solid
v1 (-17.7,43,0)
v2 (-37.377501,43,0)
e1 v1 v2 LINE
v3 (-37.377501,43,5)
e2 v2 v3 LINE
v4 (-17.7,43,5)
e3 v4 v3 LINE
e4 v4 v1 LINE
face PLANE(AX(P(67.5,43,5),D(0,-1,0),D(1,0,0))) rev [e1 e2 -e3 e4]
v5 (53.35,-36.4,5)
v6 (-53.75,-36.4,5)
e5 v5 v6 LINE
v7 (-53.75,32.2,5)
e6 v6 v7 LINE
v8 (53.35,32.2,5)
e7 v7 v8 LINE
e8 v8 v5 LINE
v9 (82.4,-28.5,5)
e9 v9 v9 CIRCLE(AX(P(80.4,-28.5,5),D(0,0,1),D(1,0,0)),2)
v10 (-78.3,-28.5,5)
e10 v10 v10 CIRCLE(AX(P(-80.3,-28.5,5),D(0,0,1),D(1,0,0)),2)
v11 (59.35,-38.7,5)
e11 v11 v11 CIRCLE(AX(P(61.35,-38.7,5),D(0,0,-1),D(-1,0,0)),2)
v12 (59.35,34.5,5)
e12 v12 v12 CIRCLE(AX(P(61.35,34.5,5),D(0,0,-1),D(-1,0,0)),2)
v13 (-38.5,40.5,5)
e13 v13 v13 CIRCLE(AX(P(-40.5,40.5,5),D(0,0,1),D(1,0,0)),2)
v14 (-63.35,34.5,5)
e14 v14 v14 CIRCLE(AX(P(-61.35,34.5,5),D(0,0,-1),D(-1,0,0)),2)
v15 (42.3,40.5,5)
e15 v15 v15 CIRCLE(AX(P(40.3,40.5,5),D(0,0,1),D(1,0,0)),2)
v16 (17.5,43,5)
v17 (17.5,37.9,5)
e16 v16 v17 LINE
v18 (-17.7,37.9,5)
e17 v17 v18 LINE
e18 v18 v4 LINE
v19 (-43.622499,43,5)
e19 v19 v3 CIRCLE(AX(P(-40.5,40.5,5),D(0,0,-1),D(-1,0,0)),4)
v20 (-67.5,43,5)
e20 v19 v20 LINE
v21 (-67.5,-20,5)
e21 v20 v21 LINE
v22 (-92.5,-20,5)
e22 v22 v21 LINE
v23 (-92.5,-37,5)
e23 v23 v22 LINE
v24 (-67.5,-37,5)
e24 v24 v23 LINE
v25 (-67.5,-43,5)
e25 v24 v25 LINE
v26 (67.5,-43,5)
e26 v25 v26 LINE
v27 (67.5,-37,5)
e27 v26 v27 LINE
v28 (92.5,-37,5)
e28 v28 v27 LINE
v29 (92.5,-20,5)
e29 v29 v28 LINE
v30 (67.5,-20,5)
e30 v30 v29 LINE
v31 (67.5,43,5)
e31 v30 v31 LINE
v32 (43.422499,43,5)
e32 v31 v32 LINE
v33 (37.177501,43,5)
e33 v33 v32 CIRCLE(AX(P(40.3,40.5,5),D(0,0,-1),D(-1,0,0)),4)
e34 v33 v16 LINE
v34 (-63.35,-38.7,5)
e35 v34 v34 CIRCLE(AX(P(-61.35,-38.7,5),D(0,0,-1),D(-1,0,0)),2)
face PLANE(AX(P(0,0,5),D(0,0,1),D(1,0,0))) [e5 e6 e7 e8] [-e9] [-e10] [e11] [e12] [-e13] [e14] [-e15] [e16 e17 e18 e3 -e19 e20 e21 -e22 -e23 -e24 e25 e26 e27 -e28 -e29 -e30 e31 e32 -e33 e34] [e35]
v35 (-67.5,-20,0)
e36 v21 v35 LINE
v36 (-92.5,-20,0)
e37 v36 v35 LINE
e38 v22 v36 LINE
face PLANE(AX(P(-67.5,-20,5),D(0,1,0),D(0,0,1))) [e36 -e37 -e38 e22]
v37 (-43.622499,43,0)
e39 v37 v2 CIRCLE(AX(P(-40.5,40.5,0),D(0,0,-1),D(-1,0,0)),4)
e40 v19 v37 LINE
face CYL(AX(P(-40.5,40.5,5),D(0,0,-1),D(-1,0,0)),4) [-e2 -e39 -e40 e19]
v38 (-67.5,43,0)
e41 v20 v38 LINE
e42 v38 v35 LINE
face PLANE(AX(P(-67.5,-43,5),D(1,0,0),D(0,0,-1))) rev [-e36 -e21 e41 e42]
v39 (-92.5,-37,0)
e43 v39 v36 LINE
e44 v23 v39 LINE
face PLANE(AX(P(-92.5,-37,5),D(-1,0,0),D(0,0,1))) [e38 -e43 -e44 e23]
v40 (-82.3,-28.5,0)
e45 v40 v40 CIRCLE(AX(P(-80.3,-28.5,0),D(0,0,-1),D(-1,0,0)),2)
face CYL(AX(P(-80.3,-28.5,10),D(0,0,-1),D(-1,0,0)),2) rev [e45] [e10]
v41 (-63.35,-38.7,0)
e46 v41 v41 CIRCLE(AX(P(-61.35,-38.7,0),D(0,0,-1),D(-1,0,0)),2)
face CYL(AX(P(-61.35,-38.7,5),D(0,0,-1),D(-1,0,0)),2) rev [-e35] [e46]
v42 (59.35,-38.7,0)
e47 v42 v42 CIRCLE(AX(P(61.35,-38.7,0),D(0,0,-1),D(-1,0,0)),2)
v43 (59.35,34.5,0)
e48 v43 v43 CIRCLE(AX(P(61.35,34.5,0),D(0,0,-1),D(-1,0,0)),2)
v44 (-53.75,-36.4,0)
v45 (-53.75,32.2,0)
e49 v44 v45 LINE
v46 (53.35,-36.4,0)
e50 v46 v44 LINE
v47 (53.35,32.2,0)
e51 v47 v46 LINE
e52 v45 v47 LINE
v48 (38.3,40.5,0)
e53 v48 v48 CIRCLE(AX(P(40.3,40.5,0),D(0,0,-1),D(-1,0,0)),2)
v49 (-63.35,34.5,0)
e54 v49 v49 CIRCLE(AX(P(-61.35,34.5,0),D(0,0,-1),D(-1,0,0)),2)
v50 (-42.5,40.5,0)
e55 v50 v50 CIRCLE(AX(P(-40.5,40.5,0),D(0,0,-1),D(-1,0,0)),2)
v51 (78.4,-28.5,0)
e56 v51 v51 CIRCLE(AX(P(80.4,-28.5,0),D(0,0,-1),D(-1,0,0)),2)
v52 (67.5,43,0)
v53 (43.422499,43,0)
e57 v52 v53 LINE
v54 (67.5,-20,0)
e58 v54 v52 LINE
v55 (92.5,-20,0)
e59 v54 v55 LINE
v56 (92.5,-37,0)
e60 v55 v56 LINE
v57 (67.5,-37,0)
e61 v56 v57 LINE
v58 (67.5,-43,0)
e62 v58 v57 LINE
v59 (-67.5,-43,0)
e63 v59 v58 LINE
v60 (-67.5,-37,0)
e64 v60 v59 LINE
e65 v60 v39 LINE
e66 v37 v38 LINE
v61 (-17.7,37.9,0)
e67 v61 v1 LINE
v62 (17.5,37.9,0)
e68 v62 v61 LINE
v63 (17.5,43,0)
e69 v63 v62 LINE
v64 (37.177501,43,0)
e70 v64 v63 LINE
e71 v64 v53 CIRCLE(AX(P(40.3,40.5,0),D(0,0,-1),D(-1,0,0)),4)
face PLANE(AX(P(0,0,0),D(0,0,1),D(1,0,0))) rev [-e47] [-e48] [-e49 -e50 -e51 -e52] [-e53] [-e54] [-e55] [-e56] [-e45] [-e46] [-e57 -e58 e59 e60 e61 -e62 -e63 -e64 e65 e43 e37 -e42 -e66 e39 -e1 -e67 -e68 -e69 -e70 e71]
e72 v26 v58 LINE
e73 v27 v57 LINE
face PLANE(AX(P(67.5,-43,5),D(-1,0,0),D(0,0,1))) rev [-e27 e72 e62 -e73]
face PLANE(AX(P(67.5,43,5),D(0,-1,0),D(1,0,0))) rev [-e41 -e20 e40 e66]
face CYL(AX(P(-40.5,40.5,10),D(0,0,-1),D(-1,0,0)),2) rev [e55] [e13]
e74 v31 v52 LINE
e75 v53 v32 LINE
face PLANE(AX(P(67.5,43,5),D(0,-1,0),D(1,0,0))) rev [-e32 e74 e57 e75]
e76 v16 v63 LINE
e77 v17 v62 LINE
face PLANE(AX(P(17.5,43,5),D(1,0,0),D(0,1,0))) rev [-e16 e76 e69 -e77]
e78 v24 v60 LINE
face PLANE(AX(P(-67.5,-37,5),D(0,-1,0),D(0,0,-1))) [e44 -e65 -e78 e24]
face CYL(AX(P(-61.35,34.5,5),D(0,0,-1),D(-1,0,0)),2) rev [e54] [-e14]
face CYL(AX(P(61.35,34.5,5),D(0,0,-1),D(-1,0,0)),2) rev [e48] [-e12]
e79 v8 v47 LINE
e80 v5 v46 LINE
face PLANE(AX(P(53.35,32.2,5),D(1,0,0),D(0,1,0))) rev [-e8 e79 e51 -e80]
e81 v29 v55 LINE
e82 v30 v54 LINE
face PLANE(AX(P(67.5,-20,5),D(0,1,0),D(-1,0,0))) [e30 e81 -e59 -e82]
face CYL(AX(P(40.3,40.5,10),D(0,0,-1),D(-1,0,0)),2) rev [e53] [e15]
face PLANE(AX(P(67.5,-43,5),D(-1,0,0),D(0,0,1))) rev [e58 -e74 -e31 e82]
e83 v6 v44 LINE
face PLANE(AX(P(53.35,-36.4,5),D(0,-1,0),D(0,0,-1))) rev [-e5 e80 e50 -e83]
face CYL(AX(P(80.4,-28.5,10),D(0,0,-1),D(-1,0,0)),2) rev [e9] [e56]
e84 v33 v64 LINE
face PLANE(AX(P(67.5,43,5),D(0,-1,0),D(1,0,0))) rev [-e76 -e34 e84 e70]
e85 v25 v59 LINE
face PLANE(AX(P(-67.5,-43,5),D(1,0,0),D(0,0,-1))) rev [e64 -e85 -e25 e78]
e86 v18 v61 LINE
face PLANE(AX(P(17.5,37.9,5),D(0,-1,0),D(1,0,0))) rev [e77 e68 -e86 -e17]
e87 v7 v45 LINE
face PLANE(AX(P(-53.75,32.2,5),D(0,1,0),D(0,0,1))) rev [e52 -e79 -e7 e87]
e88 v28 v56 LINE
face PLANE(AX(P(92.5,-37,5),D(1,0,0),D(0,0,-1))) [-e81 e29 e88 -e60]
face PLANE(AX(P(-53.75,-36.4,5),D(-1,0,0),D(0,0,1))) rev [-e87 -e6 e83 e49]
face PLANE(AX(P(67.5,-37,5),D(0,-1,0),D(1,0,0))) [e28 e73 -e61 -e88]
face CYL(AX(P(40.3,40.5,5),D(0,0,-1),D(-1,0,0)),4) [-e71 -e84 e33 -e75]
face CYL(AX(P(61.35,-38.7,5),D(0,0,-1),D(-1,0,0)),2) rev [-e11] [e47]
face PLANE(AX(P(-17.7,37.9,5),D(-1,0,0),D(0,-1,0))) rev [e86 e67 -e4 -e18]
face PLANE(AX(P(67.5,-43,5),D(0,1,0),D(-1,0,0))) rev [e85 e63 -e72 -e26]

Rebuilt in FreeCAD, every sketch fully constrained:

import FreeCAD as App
import Part
import Sketcher
Q = App.Units.Quantity


def add_polygon(sketch, points):
    """Adds a closed chain of lines whose ends are joined by coincident constraints."""
    first, n = sketch.GeometryCount, len(points)
    for a, b in zip(points, points[1:] + points[:1]):
        sketch.addGeometry(Part.LineSegment(App.Vector(*a, 0), App.Vector(*b, 0)), False)
    for i in range(n):
        sketch.addConstraint(Sketcher.Constraint("Coincident", first + i, 2, first + (i + 1) % n, 1))

doc = App.newDocument("Part")
body = doc.addObject("PartDesign::Body", "Body")

# Sketch on XY plane
sketch1 = doc.addObject("Sketcher::SketchObject", "Sketch")
body.addObject(sketch1)
sketch1.AttachmentSupport = (doc.XY_Plane, [""])
sketch1.MapMode = "FlatFace"
add_polygon(sketch1, [(-68, 43), (-68, -43), (68, -43), (68, 43)])  # lines 0-3
sketch1.addConstraint([
    Sketcher.Constraint("Vertical", 0),
    Sketcher.Constraint("Horizontal", 1),
    Sketcher.Constraint("Vertical", 2),
    Sketcher.Constraint("Horizontal", 3),
    Sketcher.Constraint("Symmetric", 0, 2, 2, 2, -1, 1),
    Sketcher.Constraint("DistanceX", 1, 1, 1, 2, Q("135 mm")),
    Sketcher.Constraint("DistanceY", 0, 2, 0, 1, Q("86 mm")),
])
pad1 = doc.addObject("PartDesign::Pad", "Pad")
body.addObject(pad1)
pad1.Profile = sketch1
pad1.Length = 5

# Sketch on XY plane
sketch2 = doc.addObject("Sketcher::SketchObject", "Sketch001")
body.addObject(sketch2)
sketch2.AttachmentSupport = (doc.XY_Plane, [""])
sketch2.MapMode = "FlatFace"
add_polygon(sketch2, [(18, 43), (18, 38), (-18, 38), (-18, 43)])  # lines 0-3
sketch2.addConstraint([
    Sketcher.Constraint("Vertical", 0),
    Sketcher.Constraint("Horizontal", 1),
    Sketcher.Constraint("Vertical", 2),
    Sketcher.Constraint("Horizontal", 3),
    Sketcher.Constraint("DistanceX", 1, 2, 1, 1, Q("35.2 mm")),
    Sketcher.Constraint("DistanceY", 0, 2, 0, 1, Q("5.1 mm")),
    Sketcher.Constraint("DistanceY", -1, 1, 2, 2, Q("43 mm")),
    Sketcher.Constraint("DistanceX", -1, 1, 0, 2, Q("17.5 mm")),
])
pocket1 = doc.addObject("PartDesign::Pocket", "Pocket")
body.addObject(pocket1)
pocket1.Profile = sketch2
pocket1.Length = 5
pocket1.Reversed = True

# Sketch on XY plane
sketch3 = doc.addObject("Sketcher::SketchObject", "Sketch002")
body.addObject(sketch3)
sketch3.AttachmentSupport = (doc.XY_Plane, [""])
sketch3.MapMode = "FlatFace"
add_polygon(sketch3, [(-68, -20), (-68, -37), (-92, -37), (-92, -20)])  # lines 0-3
add_polygon(sketch3, [(92, -20), (92, -37), (68, -37), (68, -20)])  # lines 4-7
sketch3.addConstraint([
    Sketcher.Constraint("Vertical", 0),
    Sketcher.Constraint("Horizontal", 1),
    Sketcher.Constraint("Vertical", 2),
    Sketcher.Constraint("Horizontal", 3),
    Sketcher.Constraint("Vertical", 4),
    Sketcher.Constraint("Horizontal", 5),
    Sketcher.Constraint("Vertical", 6),
    Sketcher.Constraint("Horizontal", 7),
    Sketcher.Constraint("Symmetric", 1, 2, 4, 2, -2),
    Sketcher.Constraint("Symmetric", 3, 2, 6, 2, -2),
    Sketcher.Constraint("DistanceX", 1, 2, 1, 1, Q("25 mm")),
    Sketcher.Constraint("DistanceY", 0, 2, 0, 1, Q("17 mm")),
    Sketcher.Constraint("DistanceY", 0, 2, -1, 1, Q("37 mm")),
    Sketcher.Constraint("DistanceX", 0, 2, 4, 2, Q("160 mm")),
])
pad2 = doc.addObject("PartDesign::Pad", "Pad001")
body.addObject(pad2)
pad2.Profile = sketch3
pad2.Length = 5

# Sketch on XY plane
sketch4 = doc.addObject("Sketcher::SketchObject", "Sketch003")
body.addObject(sketch4)
sketch4.AttachmentSupport = (doc.XY_Plane, [""])
sketch4.MapMode = "FlatFace"
add_polygon(sketch4, [(53, 32), (53, -36), (-54, -36), (-54, 32)])  # lines 0-3
sketch4.addConstraint([
    Sketcher.Constraint("Vertical", 0),
    Sketcher.Constraint("Horizontal", 1),
    Sketcher.Constraint("Vertical", 2),
    Sketcher.Constraint("Horizontal", 3),
    Sketcher.Constraint("DistanceX", 1, 2, 1, 1, Q("107.1 mm")),
    Sketcher.Constraint("DistanceY", 0, 2, 0, 1, Q("68.6 mm")),
    Sketcher.Constraint("DistanceY", 0, 2, -1, 1, Q("36.4 mm")),
    Sketcher.Constraint("DistanceX", -1, 1, 0, 2, Q("53.35 mm")),
])
pocket2 = doc.addObject("PartDesign::Pocket", "Pocket001")
body.addObject(pocket2)
pocket2.Profile = sketch4
pocket2.Length = 5
pocket2.Reversed = True

# Sketch on XY plane
sketch5 = doc.addObject("Sketcher::SketchObject", "Sketch004")
body.addObject(sketch5)
sketch5.AttachmentSupport = (doc.XY_Plane, [""])
sketch5.MapMode = "FlatFace"
sketch5.addGeometry([
    Part.Circle(App.Vector(40.3, 40.5, 0), App.Vector(0, 0, 1), 2),
    Part.Circle(App.Vector(80.4, -28.5, 0), App.Vector(0, 0, 1), 2),
    Part.Circle(App.Vector(-80.3, -28.5, 0), App.Vector(0, 0, 1), 2),
    Part.Circle(App.Vector(-40.5, 40.5, 0), App.Vector(0, 0, 1), 2),
], False)
sketch5.addConstraint([
    Sketcher.Constraint("Equal", 0, 1),
    Sketcher.Constraint("Equal", 1, 2),
    Sketcher.Constraint("Equal", 2, 3),
    Sketcher.Constraint("Horizontal", 1, 3, 2, 3),
    Sketcher.Constraint("Horizontal", 0, 3, 3, 3),
    Sketcher.Constraint("Diameter", 0, Q("4 mm")),
    Sketcher.Constraint("DistanceY", 1, 3, 0, 3, Q("69 mm")),
    Sketcher.Constraint("DistanceX", -1, 1, 0, 3, Q("40.3 mm")),
    Sketcher.Constraint("DistanceY", -1, 1, 0, 3, Q("40.5 mm")),
    Sketcher.Constraint("DistanceX", -1, 1, 1, 3, Q("80.4 mm")),
    Sketcher.Constraint("DistanceX", 2, 3, -1, 1, Q("80.3 mm")),
    Sketcher.Constraint("DistanceX", 3, 3, -1, 1, Q("40.5 mm")),
])
pocket3 = doc.addObject("PartDesign::Pocket", "Pocket002")
body.addObject(pocket3)
pocket3.Profile = sketch5
pocket3.Length = 10
pocket3.Reversed = True

# Sketch on XY plane
sketch6 = doc.addObject("Sketcher::SketchObject", "Sketch005")
body.addObject(sketch6)
sketch6.AttachmentSupport = (doc.XY_Plane, [""])
sketch6.MapMode = "FlatFace"
sketch6.addGeometry([
    Part.Circle(App.Vector(-40.5, 40.5, 0), App.Vector(0, 0, 1), 4),
    Part.Circle(App.Vector(-40.5, 40.5, 0), App.Vector(0, 0, 1), 2),
    Part.Circle(App.Vector(40.3, 40.5, 0), App.Vector(0, 0, 1), 4),
    Part.Circle(App.Vector(40.3, 40.5, 0), App.Vector(0, 0, 1), 2),
], False)
sketch6.addConstraint([
    Sketcher.Constraint("Coincident", 1, 3, 0, 3),
    Sketcher.Constraint("Coincident", 3, 3, 2, 3),
    Sketcher.Constraint("Equal", 0, 2),
    Sketcher.Constraint("Equal", 1, 3),
    Sketcher.Constraint("Horizontal", 1, 3, 2, 3),
    Sketcher.Constraint("Diameter", 0, Q("8 mm")),
    Sketcher.Constraint("Diameter", 1, Q("4 mm")),
    Sketcher.Constraint("DistanceX", 0, 3, -1, 1, Q("40.5 mm")),
    Sketcher.Constraint("DistanceY", -1, 1, 0, 3, Q("40.5 mm")),
    Sketcher.Constraint("DistanceX", -1, 1, 2, 3, Q("40.3 mm")),
])
pad3 = doc.addObject("PartDesign::Pad", "Pad002")
body.addObject(pad3)
pad3.Profile = sketch6
pad3.Length = 5

# Sketch on XY plane
sketch7 = doc.addObject("Sketcher::SketchObject", "Sketch006")
body.addObject(sketch7)
sketch7.AttachmentSupport = (doc.XY_Plane, [""])
sketch7.MapMode = "FlatFace"
sketch7.addGeometry([
    Part.Circle(App.Vector(-61.4, -38.7, 0), App.Vector(0, 0, 1), 2),
    Part.Circle(App.Vector(61.4, -38.7, 0), App.Vector(0, 0, 1), 2),
    Part.Circle(App.Vector(61.4, 34.5, 0), App.Vector(0, 0, 1), 2),
    Part.Circle(App.Vector(-61.4, 34.5, 0), App.Vector(0, 0, 1), 2),
], False)
sketch7.addConstraint([
    Sketcher.Constraint("Equal", 0, 1),
    Sketcher.Constraint("Equal", 1, 2),
    Sketcher.Constraint("Equal", 2, 3),
    Sketcher.Constraint("Symmetric", 0, 3, 1, 3, -2),
    Sketcher.Constraint("Symmetric", 2, 3, 3, 3, -2),
    Sketcher.Constraint("Vertical", 1, 3, 2, 3),
    Sketcher.Constraint("Diameter", 0, Q("4 mm")),
    Sketcher.Constraint("DistanceY", 0, 3, -1, 1, Q("38.7 mm")),
    Sketcher.Constraint("DistanceY", -1, 1, 2, 3, Q("34.5 mm")),
    Sketcher.Constraint("DistanceX", 0, 3, 1, 3, Q("122.7 mm")),
])
pocket4 = doc.addObject("PartDesign::Pocket", "Pocket003")
body.addObject(pocket4)
pocket4.Profile = sketch7
pocket4.Length = 5
pocket4.Reversed = True

doc.recompute()
